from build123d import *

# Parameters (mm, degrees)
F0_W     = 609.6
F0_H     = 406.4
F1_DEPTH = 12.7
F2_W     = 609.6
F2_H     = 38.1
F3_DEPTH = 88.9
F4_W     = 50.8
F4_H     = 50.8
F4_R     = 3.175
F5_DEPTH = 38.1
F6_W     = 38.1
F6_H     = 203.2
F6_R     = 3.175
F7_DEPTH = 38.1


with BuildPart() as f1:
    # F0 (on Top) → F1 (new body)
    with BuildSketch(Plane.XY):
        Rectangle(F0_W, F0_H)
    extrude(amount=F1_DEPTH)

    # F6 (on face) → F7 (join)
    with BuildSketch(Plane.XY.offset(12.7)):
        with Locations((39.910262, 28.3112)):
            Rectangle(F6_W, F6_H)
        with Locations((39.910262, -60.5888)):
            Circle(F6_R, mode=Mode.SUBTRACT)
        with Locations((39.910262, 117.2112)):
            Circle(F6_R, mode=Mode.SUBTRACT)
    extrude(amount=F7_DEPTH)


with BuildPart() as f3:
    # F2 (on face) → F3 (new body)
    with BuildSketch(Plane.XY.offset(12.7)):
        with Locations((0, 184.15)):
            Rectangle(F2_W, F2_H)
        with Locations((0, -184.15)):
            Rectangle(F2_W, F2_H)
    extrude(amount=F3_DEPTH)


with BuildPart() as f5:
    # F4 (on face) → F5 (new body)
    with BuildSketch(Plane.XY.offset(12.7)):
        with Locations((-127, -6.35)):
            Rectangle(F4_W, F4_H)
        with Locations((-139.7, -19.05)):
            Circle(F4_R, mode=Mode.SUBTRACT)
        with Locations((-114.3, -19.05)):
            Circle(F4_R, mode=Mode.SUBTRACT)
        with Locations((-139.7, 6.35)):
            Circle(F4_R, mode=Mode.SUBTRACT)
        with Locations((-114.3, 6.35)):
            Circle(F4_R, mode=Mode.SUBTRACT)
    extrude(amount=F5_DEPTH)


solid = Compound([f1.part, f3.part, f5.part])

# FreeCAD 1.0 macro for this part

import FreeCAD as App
import Part
import Sketcher

V = App.Vector
Q = App.Units.Quantity

doc = App.newDocument("Part")
body = doc.addObject("PartDesign::Body", "Body")

# Sketch on XY plane
sketch1 = doc.addObject("Sketcher::SketchObject", "Sketch")
body.addObject(sketch1)
sketch1.AttachmentSupport = (doc.XY_Plane, [""])
sketch1.MapMode = "FlatFace"
sketch1.addGeometry([
    Part.LineSegment(V(-305, 203, 0), V(-305, -203, 0)),
    Part.LineSegment(V(-305, -203, 0), V(305, -203, 0)),
    Part.LineSegment(V(305, -203, 0), V(305, 203, 0)),
    Part.LineSegment(V(305, 203, 0), V(-305, 203, 0)),
], False)
sketch1.addConstraint([
    Sketcher.Constraint("Coincident", 0, 2, 1, 1),
    Sketcher.Constraint("Coincident", 1, 2, 2, 1),
    Sketcher.Constraint("Coincident", 2, 2, 3, 1),
    Sketcher.Constraint("Coincident", 3, 2, 0, 1),
    Sketcher.Constraint("Vertical", 0),
    Sketcher.Constraint("Horizontal", 1),
    Sketcher.Constraint("Vertical", 2),
    Sketcher.Constraint("Horizontal", 3),
    Sketcher.Constraint("Symmetric", 0, 2, 2, 2, -1, 1),
    Sketcher.Constraint("DistanceX", 1, 1, 1, 2, Q("24 in")),
    Sketcher.Constraint("DistanceY", 0, 2, 0, 1, Q("16 in")),
])
pad1 = doc.addObject("PartDesign::Pad", "Pad")
body.addObject(pad1)
pad1.Profile = sketch1
pad1.Length = Q("0.5 in")

# Sketch on XY plane
sketch2 = doc.addObject("Sketcher::SketchObject", "Sketch001")
body.addObject(sketch2)
sketch2.AttachmentSupport = (doc.XY_Plane, [""])
sketch2.MapMode = "FlatFace"
sketch2.AttachmentOffset = App.Placement(V(0, 0, 0.5 * 25.4), App.Rotation())
sketch2.addGeometry([
    Part.LineSegment(V(20.9, 129.9, 0), V(20.9, -73.3, 0)),  # 0
    Part.LineSegment(V(20.9, -73.3, 0), V(59, -73.3, 0)),  # 1
    Part.LineSegment(V(59, -73.3, 0), V(59, 129.9, 0)),  # 2
    Part.LineSegment(V(59, 129.9, 0), V(20.9, 129.9, 0)),  # 3
    Part.Circle(V(39.9, -60.6, 0), V(0, 0, 1), 3.2),  # 4
    Part.Circle(V(39.9, 117.2, 0), V(0, 0, 1), 3.2),  # 5
], False)
sketch2.addConstraint([
    Sketcher.Constraint("Coincident", 0, 2, 1, 1),
    Sketcher.Constraint("Coincident", 1, 2, 2, 1),
    Sketcher.Constraint("Coincident", 2, 2, 3, 1),
    Sketcher.Constraint("Coincident", 3, 2, 0, 1),
    Sketcher.Constraint("Vertical", 0),
    Sketcher.Constraint("Horizontal", 1),
    Sketcher.Constraint("Vertical", 2),
    Sketcher.Constraint("Horizontal", 3),
    Sketcher.Constraint("Equal", 4, 5),
    Sketcher.Constraint("Vertical", 4, 3, 5, 3),
    Sketcher.Constraint("Diameter", 4, Q("0.25 in")),
    Sketcher.Constraint("DistanceY", 0, 2, 0, 1, Q("8 in")),
    Sketcher.Constraint("DistanceX", 1, 1, 1, 2, Q("1.5 in")),
    Sketcher.Constraint("DistanceY", 4, 3, 5, 3, Q("7 in")),
    Sketcher.Constraint("DistanceY", 0, 2, 4, 3, Q("0.5 in")),
    Sketcher.Constraint("DistanceX", 0, 2, 4, 3, Q("0.75 in")),
    Sketcher.Constraint("DistanceY", 4, 3, -1, 1, 60.5888),
    Sketcher.Constraint("DistanceX", -1, 1, 0, 2, 20.860262),
])
pad2 = doc.addObject("PartDesign::Pad", "Pad001")
body.addObject(pad2)
pad2.Profile = sketch2
pad2.Length = Q("1.5 in")
body2 = doc.addObject("PartDesign::Body", "Body001")
body2.AllowCompound = True

# Sketch on XY plane
sketch3 = doc.addObject("Sketcher::SketchObject", "Sketch002")
body2.addObject(sketch3)
sketch3.AttachmentSupport = (doc.getObject("XY_Plane001"), [""])
sketch3.MapMode = "FlatFace"
sketch3.AttachmentOffset = App.Placement(V(0, 0, 0.5 * 25.4), App.Rotation())
sketch3.addGeometry([
    Part.LineSegment(V(-305, 203, 0), V(-305, 165, 0)),  # 0
    Part.LineSegment(V(-305, 165, 0), V(305, 165, 0)),  # 1
    Part.LineSegment(V(305, 165, 0), V(305, 203, 0)),  # 2
    Part.LineSegment(V(305, 203, 0), V(-305, 203, 0)),  # 3
    Part.LineSegment(V(-305, -165, 0), V(-305, -203, 0)),  # 4
    Part.LineSegment(V(-305, -203, 0), V(305, -203, 0)),  # 5
    Part.LineSegment(V(305, -203, 0), V(305, -165, 0)),  # 6
    Part.LineSegment(V(305, -165, 0), V(-305, -165, 0)),  # 7
], False)
sketch3.addConstraint([
    Sketcher.Constraint("Coincident", 0, 2, 1, 1),
    Sketcher.Constraint("Coincident", 1, 2, 2, 1),
    Sketcher.Constraint("Coincident", 2, 2, 3, 1),
    Sketcher.Constraint("Coincident", 3, 2, 0, 1),
    Sketcher.Constraint("Coincident", 4, 2, 5, 1),
    Sketcher.Constraint("Coincident", 5, 2, 6, 1),
    Sketcher.Constraint("Coincident", 6, 2, 7, 1),
    Sketcher.Constraint("Coincident", 7, 2, 4, 1),
    Sketcher.Constraint("Vertical", 0),
    Sketcher.Constraint("Horizontal", 1),
    Sketcher.Constraint("Vertical", 2),
    Sketcher.Constraint("Horizontal", 3),
    Sketcher.Constraint("Vertical", 4),
    Sketcher.Constraint("Horizontal", 5),
    Sketcher.Constraint("Vertical", 6),
    Sketcher.Constraint("Horizontal", 7),
    Sketcher.Constraint("Symmetric", 2, 2, 4, 2, -1, 1),
    Sketcher.Constraint("Symmetric", 0, 2, 6, 2, -1, 1),
    Sketcher.Constraint("Vertical", 3, 2, 4, 2),
    Sketcher.Constraint("DistanceX", 1, 1, 1, 2, Q("24 in")),
    Sketcher.Constraint("DistanceY", 0, 2, 0, 1, Q("1.5 in")),
    Sketcher.Constraint("DistanceY", -1, 1, 2, 2, Q("8 in")),
])
pad3 = doc.addObject("PartDesign::Pad", "Pad002")
body2.addObject(pad3)
pad3.Profile = sketch3
pad3.Length = Q("3.5 in")
body3 = doc.addObject("PartDesign::Body", "Body002")

# Sketch on XY plane
sketch4 = doc.addObject("Sketcher::SketchObject", "Sketch003")
body3.addObject(sketch4)
sketch4.AttachmentSupport = (doc.getObject("XY_Plane002"), [""])
sketch4.MapMode = "FlatFace"
sketch4.AttachmentOffset = App.Placement(V(0, 0, 0.5 * 25.4), App.Rotation())
sketch4.addGeometry([
    Part.LineSegment(V(-152.4, 19.1, 0), V(-152.4, -31.8, 0)),  # 0
    Part.LineSegment(V(-152.4, -31.8, 0), V(-101.6, -31.8, 0)),  # 1
    Part.LineSegment(V(-101.6, -31.8, 0), V(-101.6, 19.1, 0)),  # 2
    Part.LineSegment(V(-101.6, 19.1, 0), V(-152.4, 19.1, 0)),  # 3
    Part.Circle(V(-139.7, -19.1, 0), V(0, 0, 1), 3.2),  # 4
    Part.Circle(V(-114.3, -19.1, 0), V(0, 0, 1), 3.2),  # 5
    Part.Circle(V(-139.7, 6.3, 0), V(0, 0, 1), 3.2),  # 6
    Part.Circle(V(-114.3, 6.3, 0), V(0, 0, 1), 3.2),  # 7
], False)
sketch4.addConstraint([
    Sketcher.Constraint("Coincident", 0, 2, 1, 1),
    Sketcher.Constraint("Coincident", 1, 2, 2, 1),
    Sketcher.Constraint("Coincident", 2, 2, 3, 1),
    Sketcher.Constraint("Coincident", 3, 2, 0, 1),
    Sketcher.Constraint("Vertical", 0),
    Sketcher.Constraint("Horizontal", 1),
    Sketcher.Constraint("Vertical", 2),
    Sketcher.Constraint("Horizontal", 3),
    Sketcher.Constraint("Equal", 4, 5),
    Sketcher.Constraint("Equal", 5, 6),
    Sketcher.Constraint("Equal", 6, 7),
    Sketcher.Constraint("Horizontal", 4, 3, 5, 3),
    Sketcher.Constraint("Horizontal", 6, 3, 7, 3),
    Sketcher.Constraint("Vertical", 4, 3, 6, 3),
    Sketcher.Constraint("Vertical", 5, 3, 7, 3),
    Sketcher.Constraint("Equal", 3, 0),
    Sketcher.Constraint("Diameter", 4, Q("0.25 in")),
    Sketcher.Constraint("DistanceX", 1, 1, 1, 2, Q("2 in")),
    Sketcher.Constraint("DistanceX", 0, 2, -1, 1, Q("6 in")),
    Sketcher.Constraint("DistanceX", 4, 3, 5, 3, Q("1 in")),
    Sketcher.Constraint("DistanceY", 4, 3, 6, 3, Q("1 in")),
    Sketcher.Constraint("DistanceX", 4, 3, -1, 1, Q("5.5 in")),
    Sketcher.Constraint("DistanceY", 0, 2, 4, 3, Q("0.5 in")),
    Sketcher.Constraint("DistanceY", 4, 3, -1, 1, Q("0.75 in")),
])
pad4 = doc.addObject("PartDesign::Pad", "Pad003")
body3.addObject(pad4)
pad4.Profile = sketch4
pad4.Length = Q("1.5 in")

doc.recompute()
